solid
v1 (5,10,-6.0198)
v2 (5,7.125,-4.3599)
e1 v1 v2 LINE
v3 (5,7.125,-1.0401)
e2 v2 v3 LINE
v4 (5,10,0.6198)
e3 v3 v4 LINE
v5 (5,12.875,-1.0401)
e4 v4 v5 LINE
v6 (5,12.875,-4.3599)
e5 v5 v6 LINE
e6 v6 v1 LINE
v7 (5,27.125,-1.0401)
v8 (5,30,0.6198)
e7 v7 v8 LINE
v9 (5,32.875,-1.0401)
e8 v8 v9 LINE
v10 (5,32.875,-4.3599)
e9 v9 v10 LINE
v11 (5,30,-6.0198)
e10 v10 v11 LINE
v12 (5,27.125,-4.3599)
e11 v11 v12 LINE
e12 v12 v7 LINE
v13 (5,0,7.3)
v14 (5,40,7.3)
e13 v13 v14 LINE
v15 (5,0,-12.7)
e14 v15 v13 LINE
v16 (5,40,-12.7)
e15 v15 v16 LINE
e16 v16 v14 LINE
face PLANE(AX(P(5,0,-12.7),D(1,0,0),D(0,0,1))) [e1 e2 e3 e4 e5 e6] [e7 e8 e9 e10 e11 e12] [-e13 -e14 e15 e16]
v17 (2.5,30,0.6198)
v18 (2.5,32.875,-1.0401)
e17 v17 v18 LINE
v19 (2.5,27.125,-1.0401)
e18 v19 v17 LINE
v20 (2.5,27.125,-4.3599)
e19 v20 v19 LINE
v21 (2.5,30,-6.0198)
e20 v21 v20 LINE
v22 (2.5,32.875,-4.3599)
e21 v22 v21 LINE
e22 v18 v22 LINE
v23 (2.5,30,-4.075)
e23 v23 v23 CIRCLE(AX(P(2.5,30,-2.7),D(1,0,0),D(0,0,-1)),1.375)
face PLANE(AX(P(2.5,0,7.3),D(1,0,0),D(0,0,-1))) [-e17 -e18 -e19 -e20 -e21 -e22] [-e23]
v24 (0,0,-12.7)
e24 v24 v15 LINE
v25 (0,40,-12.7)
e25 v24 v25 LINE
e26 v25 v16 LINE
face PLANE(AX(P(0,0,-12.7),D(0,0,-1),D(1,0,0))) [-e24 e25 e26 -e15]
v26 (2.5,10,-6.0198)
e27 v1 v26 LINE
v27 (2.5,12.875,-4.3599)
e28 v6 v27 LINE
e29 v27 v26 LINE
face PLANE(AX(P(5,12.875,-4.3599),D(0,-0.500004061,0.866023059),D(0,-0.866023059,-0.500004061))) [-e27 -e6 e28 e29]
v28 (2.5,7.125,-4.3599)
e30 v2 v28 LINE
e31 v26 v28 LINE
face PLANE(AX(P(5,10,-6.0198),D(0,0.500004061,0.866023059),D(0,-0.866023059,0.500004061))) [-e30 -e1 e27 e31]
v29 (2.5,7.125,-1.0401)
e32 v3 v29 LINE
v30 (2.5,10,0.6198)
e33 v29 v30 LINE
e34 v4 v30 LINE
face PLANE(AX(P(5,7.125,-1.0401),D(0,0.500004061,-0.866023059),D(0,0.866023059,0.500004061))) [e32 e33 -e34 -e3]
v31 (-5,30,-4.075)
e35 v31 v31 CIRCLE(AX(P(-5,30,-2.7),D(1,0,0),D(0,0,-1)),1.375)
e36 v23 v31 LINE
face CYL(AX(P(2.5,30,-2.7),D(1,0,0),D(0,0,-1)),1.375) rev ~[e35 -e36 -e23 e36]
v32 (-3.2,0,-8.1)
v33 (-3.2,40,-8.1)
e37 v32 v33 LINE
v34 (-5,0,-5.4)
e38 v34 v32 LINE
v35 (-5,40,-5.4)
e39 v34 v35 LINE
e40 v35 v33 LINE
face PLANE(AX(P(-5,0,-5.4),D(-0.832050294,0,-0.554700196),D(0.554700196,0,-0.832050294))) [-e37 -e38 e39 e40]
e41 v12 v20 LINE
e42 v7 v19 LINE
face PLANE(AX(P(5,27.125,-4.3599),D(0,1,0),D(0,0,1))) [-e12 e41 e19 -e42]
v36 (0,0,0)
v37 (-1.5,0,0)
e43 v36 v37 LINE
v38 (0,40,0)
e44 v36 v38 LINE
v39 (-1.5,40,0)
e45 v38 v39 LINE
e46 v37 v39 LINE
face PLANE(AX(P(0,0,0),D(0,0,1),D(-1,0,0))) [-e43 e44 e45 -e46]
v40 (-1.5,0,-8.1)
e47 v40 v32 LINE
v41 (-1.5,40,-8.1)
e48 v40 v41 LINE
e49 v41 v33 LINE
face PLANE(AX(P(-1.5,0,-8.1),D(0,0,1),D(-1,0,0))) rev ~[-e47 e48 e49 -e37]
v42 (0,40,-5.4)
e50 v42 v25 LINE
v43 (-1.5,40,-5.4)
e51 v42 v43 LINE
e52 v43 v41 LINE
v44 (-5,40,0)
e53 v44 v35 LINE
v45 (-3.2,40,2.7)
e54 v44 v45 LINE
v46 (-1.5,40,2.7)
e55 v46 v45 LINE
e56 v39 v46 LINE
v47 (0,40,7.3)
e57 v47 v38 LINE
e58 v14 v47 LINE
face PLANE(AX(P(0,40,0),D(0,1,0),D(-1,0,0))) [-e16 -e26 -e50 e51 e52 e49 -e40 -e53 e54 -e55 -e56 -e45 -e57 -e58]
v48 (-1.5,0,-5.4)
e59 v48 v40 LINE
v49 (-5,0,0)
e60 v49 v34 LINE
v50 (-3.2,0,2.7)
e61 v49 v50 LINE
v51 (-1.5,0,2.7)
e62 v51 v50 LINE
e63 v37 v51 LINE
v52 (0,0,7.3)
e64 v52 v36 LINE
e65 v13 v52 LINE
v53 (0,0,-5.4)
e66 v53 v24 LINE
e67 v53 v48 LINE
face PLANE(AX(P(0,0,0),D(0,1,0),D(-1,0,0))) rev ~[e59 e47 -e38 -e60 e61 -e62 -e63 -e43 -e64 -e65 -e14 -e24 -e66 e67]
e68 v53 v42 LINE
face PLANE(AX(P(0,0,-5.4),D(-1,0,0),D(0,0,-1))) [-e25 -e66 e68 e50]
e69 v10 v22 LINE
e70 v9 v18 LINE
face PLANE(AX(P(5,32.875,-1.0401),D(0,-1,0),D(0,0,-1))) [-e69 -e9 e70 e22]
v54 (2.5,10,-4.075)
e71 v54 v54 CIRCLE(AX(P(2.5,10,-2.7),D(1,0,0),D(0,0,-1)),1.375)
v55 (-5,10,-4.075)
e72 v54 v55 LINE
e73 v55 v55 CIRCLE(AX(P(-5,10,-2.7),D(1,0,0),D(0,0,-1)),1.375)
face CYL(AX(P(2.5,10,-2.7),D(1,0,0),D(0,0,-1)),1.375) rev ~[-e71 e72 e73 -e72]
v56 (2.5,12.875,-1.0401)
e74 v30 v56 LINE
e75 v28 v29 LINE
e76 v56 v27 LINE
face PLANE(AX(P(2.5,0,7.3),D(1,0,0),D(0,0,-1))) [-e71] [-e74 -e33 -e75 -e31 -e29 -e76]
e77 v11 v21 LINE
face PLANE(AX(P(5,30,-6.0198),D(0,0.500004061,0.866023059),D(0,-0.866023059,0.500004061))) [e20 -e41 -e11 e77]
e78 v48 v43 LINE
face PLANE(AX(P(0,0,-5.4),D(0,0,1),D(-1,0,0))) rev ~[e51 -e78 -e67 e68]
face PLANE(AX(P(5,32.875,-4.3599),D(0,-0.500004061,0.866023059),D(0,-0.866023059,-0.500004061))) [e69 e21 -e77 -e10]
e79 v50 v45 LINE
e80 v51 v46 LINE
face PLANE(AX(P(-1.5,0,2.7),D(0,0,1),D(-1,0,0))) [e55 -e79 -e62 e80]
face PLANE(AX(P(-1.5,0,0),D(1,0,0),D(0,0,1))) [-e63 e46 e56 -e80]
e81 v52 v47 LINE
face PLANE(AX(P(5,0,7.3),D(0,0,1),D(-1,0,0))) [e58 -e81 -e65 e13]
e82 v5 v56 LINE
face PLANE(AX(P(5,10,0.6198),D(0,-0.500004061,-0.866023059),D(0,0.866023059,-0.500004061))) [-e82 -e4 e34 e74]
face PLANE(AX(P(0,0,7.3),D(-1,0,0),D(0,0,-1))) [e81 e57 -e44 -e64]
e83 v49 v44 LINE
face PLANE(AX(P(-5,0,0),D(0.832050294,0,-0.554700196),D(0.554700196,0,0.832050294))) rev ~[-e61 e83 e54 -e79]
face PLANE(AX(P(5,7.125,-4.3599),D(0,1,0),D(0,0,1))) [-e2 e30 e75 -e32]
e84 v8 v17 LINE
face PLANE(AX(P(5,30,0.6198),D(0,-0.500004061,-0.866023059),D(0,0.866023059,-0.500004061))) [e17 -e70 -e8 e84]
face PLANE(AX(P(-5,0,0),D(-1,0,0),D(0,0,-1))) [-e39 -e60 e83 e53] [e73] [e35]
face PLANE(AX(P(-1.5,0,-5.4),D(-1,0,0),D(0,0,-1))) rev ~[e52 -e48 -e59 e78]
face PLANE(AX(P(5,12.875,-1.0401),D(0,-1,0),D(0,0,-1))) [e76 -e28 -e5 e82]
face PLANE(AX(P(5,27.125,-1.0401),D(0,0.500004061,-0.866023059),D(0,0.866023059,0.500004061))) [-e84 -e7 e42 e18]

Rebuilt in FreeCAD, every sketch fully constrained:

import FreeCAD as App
import Part
import Sketcher

V = App.Vector
Q = App.Units.Quantity

doc = App.newDocument("Part")
params = doc.addObject("Spreadsheet::Sheet", "Params")
for row, (alias, value) in enumerate([
    ("sketch1_width", "5 mm"),
    ("sketch1_height", "20 mm"),
    ("sketch1_width2", "1.5 mm"),
    ("sketch1_width3", "1.7 mm"),
    ("sketch1_height2", "7.3 mm"),
    ("pad1_length", "40 mm"),
    ("pocket1_length", "2.5 mm"),
    ("sketch3_diameter", "2.75 mm"),
    ("pocket2_length", "20 mm"),
], start=1):
    params.set(f"A{row}", alias)
    params.set(f"B{row}", "=" + value)
    params.setAlias(f"B{row}", alias)

body = doc.addObject("PartDesign::Body", "Body")

# Sketch on XZ plane
sketch1 = body.newObject("Sketcher::SketchObject", "Sketch")
sketch1.AttachmentSupport = (doc.getObject("XZ_Plane"), [""])
sketch1.MapMode = "FlatFace"
sketch1.addGeometry([
    Part.LineSegment(V(0, -12.7, 0), V(0, -5.4, 0)),  # 0
    Part.LineSegment(V(0, -5.4, 0), V(-1.5, -5.4, 0)),  # 1
    Part.LineSegment(V(-1.5, -5.4, 0), V(-1.5, -8.1, 0)),  # 2
    Part.LineSegment(V(-1.5, -8.1, 0), V(-3.2, -8.1, 0)),  # 3
    Part.LineSegment(V(-3.2, -8.1, 0), V(-5, -5.4, 0)),  # 4
    Part.LineSegment(V(-5, -5.4, 0), V(-5, 0, 0)),  # 5
    Part.LineSegment(V(-5, 0, 0), V(-3.2, 2.7, 0)),  # 6
    Part.LineSegment(V(-3.2, 2.7, 0), V(-1.5, 2.7, 0)),  # 7
    Part.LineSegment(V(-1.5, 2.7, 0), V(-1.5, 0, 0)),  # 8
    Part.LineSegment(V(-1.5, 0, 0), V(0, 0, 0)),  # 9
    Part.LineSegment(V(0, 0, 0), V(0, 7.3, 0)),  # 10
    Part.LineSegment(V(0, 7.3, 0), V(5, 7.3, 0)),  # 11
    Part.LineSegment(V(5, 7.3, 0), V(5, -12.7, 0)),  # 12
    Part.LineSegment(V(5, -12.7, 0), V(0, -12.7, 0)),  # 13
], False)
sketch1.addConstraint([
    Sketcher.Constraint("Coincident", 0, 2, 1, 1),
    Sketcher.Constraint("Coincident", 1, 2, 2, 1),
    Sketcher.Constraint("Coincident", 2, 2, 3, 1),
    Sketcher.Constraint("Coincident", 3, 2, 4, 1),
    Sketcher.Constraint("Coincident", 4, 2, 5, 1),
    Sketcher.Constraint("Coincident", 5, 2, 6, 1),
    Sketcher.Constraint("Coincident", 6, 2, 7, 1),
    Sketcher.Constraint("Coincident", 7, 2, 8, 1),
    Sketcher.Constraint("Coincident", 8, 2, 9, 1),
    Sketcher.Constraint("Coincident", 9, 2, 10, 1),
    Sketcher.Constraint("Coincident", 10, 2, 11, 1),
    Sketcher.Constraint("Coincident", 11, 2, 12, 1),
    Sketcher.Constraint("Coincident", 12, 2, 13, 1),
    Sketcher.Constraint("Coincident", 13, 2, 0, 1),
    Sketcher.Constraint("Vertical", 0),
    Sketcher.Constraint("Horizontal", 1),
    Sketcher.Constraint("Vertical", 2),
    Sketcher.Constraint("Horizontal", 3),
    Sketcher.Constraint("Vertical", 5),
    Sketcher.Constraint("Horizontal", 7),
    Sketcher.Constraint("Vertical", 8),
    Sketcher.Constraint("Horizontal", 9),
    Sketcher.Constraint("Vertical", 10),
    Sketcher.Constraint("Horizontal", 11),
    Sketcher.Constraint("Vertical", 12),
    Sketcher.Constraint("Horizontal", 13),
    Sketcher.Constraint("Coincident", 9, 2, -1, 1),
    Sketcher.Constraint("PointOnObject", 0, 2, -2),
    Sketcher.Constraint("PointOnObject", 5, 2, -1),
    Sketcher.Constraint("Horizontal", 1, 2, 4, 2),
    Sketcher.Constraint("Vertical", 3, 2, 6, 2),
    Sketcher.Constraint("Vertical", 2, 2, 7, 2),
    Sketcher.Constraint("Equal", 2, 8),
    Sketcher.Constraint("Equal", 0, 10),
    Sketcher.Constraint("DistanceX", 11, 1, 11, 2, Q("5 mm")),
    Sketcher.Constraint("DistanceY", 12, 2, 12, 1, Q("20 mm")),
    Sketcher.Constraint("DistanceX", 1, 2, 1, 1, Q("1.5 mm")),
    Sketcher.Constraint("DistanceX", 3, 2, 3, 1, Q("1.7 mm")),
    Sketcher.Constraint("DistanceY", 0, 1, 0, 2, Q("7.3 mm")),
    Sketcher.Constraint("DistanceY", 2, 2, 2, 1, Q("2.7 mm")),
    Sketcher.Constraint("DistanceX", 4, 2, -1, 1, Q("5 mm")),
])
sketch1.setExpression("Constraints[34]", "Params.sketch1_width")
sketch1.setExpression("Constraints[35]", "Params.sketch1_height")
sketch1.setExpression("Constraints[36]", "Params.sketch1_width2")
sketch1.setExpression("Constraints[37]", "Params.sketch1_width3")
sketch1.setExpression("Constraints[38]", "Params.sketch1_height2")
pad1 = body.newObject("PartDesign::Pad", "Pad")
pad1.Profile = sketch1
pad1.setExpression("Length", "Params.pad1_length")
pad1.Reversed = True

# Sketch on YZ plane
sketch2 = body.newObject("Sketcher::SketchObject", "Sketch001")
sketch2.AttachmentSupport = (doc.getObject("YZ_Plane"), [""])
sketch2.MapMode = "FlatFace"
sketch2.AttachmentOffset = App.Placement(V(0, 0, 5), App.Rotation())
sketch2.addGeometry([
    Part.LineSegment(V(7.125, -1.0401, 0), V(7.125, -4.3599, 0)),  # 0
    Part.LineSegment(V(7.125, -4.3599, 0), V(10, -6.0198, 0)),  # 1
    Part.LineSegment(V(10, -6.0198, 0), V(12.875, -4.3599, 0)),  # 2
    Part.LineSegment(V(12.875, -4.3599, 0), V(12.875, -1.0401, 0)),  # 3
    Part.LineSegment(V(12.875, -1.0401, 0), V(10, 0.6198, 0)),  # 4
    Part.LineSegment(V(10, 0.6198, 0), V(7.125, -1.0401, 0)),  # 5
    Part.LineSegment(V(27.125, -1.0401, 0), V(27.125, -4.3599, 0)),  # 6
    Part.LineSegment(V(27.125, -4.3599, 0), V(30, -6.0198, 0)),  # 7
    Part.LineSegment(V(30, -6.0198, 0), V(32.875, -4.3599, 0)),  # 8
    Part.LineSegment(V(32.875, -4.3599, 0), V(32.875, -1.0401, 0)),  # 9
    Part.LineSegment(V(32.875, -1.0401, 0), V(30, 0.6198, 0)),  # 10
    Part.LineSegment(V(30, 0.6198, 0), V(27.125, -1.0401, 0)),  # 11
], False)
sketch2.addConstraint([
    Sketcher.Constraint("Coincident", 0, 2, 1, 1),
    Sketcher.Constraint("Coincident", 1, 2, 2, 1),
    Sketcher.Constraint("Coincident", 2, 2, 3, 1),
    Sketcher.Constraint("Coincident", 3, 2, 4, 1),
    Sketcher.Constraint("Coincident", 4, 2, 5, 1),
    Sketcher.Constraint("Coincident", 5, 2, 0, 1),
    Sketcher.Constraint("Coincident", 6, 2, 7, 1),
    Sketcher.Constraint("Coincident", 7, 2, 8, 1),
    Sketcher.Constraint("Coincident", 8, 2, 9, 1),
    Sketcher.Constraint("Coincident", 9, 2, 10, 1),
    Sketcher.Constraint("Coincident", 10, 2, 11, 1),
    Sketcher.Constraint("Coincident", 11, 2, 6, 1),
    Sketcher.Constraint("Vertical", 0),
    Sketcher.Constraint("Vertical", 3),
    Sketcher.Constraint("Vertical", 6),
    Sketcher.Constraint("Vertical", 9),
    Sketcher.Constraint("Parallel", 1, 4),
    Sketcher.Constraint("Parallel", 2, 5),
    Sketcher.Constraint("Parallel", 4, 7),
    Sketcher.Constraint("Parallel", 5, 8),
    Sketcher.Constraint("Parallel", 7, 10),
    Sketcher.Constraint("Parallel", 8, 11),
    Sketcher.Constraint("Horizontal", 0, 2, 2, 2),
    Sketcher.Constraint("Horizontal", 3, 2, 5, 2),
    Sketcher.Constraint("Horizontal", 2, 2, 6, 2),
    Sketcher.Constraint("Horizontal", 1, 2, 7, 2),
    Sketcher.Constraint("Horizontal", 6, 2, 8, 2),
    Sketcher.Constraint("Horizontal", 5, 2, 9, 2),
    Sketcher.Constraint("Horizontal", 4, 2, 10, 2),
    Sketcher.Constraint("Vertical", 1, 2, 4, 2),
    Sketcher.Constraint("DistanceX", -1, 1, 1, 2, Q("10 mm")),
    Sketcher.Constraint("Angle", 1, Q("-30.0003 deg")),
    Sketcher.Constraint("DistanceX", 0, 2, 2, 2, Q("5.75 mm")),
    Sketcher.Constraint("DistanceX", -1, 1, 7, 2, Q("30 mm")),
    Sketcher.Constraint("DistanceY", 0, 2, -1, 1, Q("4.36 mm")),
    Sketcher.Constraint("DistanceY", 3, 2, -1, 1, Q("1.04 mm")),
])
pocket1 = body.newObject("PartDesign::Pocket", "Pocket")
pocket1.Profile = sketch2
pocket1.setExpression("Length", "Params.pocket1_length")

# Sketch on YZ plane
sketch3 = body.newObject("Sketcher::SketchObject", "Sketch002")
sketch3.AttachmentSupport = (doc.getObject("YZ_Plane"), [""])
sketch3.MapMode = "FlatFace"
sketch3.AttachmentOffset = App.Placement(V(0, 0, 2.5), App.Rotation())
sketch3.addGeometry([
    Part.Circle(V(10, -2.7, 0), V(0, 0, 1), 1.375),
    Part.Circle(V(30, -2.7, 0), V(0, 0, 1), 1.375),
], False)
sketch3.addConstraint([
    Sketcher.Constraint("Equal", 0, 1),
    Sketcher.Constraint("Horizontal", 0, 3, 1, 3),
    Sketcher.Constraint("Diameter", 0, Q("2.75 mm")),
    Sketcher.Constraint("DistanceX", -1, 1, 0, 3, Q("10 mm")),
    Sketcher.Constraint("DistanceX", -1, 1, 1, 3, Q("30 mm")),
    Sketcher.Constraint("DistanceY", 0, 3, -1, 1, Q("2.7 mm")),
])
sketch3.setExpression("Constraints[2]", "Params.sketch3_diameter")
pocket2 = body.newObject("PartDesign::Pocket", "Pocket001")
pocket2.Profile = sketch3
pocket2.setExpression("Length", "Params.pocket2_length")

doc.recompute()
